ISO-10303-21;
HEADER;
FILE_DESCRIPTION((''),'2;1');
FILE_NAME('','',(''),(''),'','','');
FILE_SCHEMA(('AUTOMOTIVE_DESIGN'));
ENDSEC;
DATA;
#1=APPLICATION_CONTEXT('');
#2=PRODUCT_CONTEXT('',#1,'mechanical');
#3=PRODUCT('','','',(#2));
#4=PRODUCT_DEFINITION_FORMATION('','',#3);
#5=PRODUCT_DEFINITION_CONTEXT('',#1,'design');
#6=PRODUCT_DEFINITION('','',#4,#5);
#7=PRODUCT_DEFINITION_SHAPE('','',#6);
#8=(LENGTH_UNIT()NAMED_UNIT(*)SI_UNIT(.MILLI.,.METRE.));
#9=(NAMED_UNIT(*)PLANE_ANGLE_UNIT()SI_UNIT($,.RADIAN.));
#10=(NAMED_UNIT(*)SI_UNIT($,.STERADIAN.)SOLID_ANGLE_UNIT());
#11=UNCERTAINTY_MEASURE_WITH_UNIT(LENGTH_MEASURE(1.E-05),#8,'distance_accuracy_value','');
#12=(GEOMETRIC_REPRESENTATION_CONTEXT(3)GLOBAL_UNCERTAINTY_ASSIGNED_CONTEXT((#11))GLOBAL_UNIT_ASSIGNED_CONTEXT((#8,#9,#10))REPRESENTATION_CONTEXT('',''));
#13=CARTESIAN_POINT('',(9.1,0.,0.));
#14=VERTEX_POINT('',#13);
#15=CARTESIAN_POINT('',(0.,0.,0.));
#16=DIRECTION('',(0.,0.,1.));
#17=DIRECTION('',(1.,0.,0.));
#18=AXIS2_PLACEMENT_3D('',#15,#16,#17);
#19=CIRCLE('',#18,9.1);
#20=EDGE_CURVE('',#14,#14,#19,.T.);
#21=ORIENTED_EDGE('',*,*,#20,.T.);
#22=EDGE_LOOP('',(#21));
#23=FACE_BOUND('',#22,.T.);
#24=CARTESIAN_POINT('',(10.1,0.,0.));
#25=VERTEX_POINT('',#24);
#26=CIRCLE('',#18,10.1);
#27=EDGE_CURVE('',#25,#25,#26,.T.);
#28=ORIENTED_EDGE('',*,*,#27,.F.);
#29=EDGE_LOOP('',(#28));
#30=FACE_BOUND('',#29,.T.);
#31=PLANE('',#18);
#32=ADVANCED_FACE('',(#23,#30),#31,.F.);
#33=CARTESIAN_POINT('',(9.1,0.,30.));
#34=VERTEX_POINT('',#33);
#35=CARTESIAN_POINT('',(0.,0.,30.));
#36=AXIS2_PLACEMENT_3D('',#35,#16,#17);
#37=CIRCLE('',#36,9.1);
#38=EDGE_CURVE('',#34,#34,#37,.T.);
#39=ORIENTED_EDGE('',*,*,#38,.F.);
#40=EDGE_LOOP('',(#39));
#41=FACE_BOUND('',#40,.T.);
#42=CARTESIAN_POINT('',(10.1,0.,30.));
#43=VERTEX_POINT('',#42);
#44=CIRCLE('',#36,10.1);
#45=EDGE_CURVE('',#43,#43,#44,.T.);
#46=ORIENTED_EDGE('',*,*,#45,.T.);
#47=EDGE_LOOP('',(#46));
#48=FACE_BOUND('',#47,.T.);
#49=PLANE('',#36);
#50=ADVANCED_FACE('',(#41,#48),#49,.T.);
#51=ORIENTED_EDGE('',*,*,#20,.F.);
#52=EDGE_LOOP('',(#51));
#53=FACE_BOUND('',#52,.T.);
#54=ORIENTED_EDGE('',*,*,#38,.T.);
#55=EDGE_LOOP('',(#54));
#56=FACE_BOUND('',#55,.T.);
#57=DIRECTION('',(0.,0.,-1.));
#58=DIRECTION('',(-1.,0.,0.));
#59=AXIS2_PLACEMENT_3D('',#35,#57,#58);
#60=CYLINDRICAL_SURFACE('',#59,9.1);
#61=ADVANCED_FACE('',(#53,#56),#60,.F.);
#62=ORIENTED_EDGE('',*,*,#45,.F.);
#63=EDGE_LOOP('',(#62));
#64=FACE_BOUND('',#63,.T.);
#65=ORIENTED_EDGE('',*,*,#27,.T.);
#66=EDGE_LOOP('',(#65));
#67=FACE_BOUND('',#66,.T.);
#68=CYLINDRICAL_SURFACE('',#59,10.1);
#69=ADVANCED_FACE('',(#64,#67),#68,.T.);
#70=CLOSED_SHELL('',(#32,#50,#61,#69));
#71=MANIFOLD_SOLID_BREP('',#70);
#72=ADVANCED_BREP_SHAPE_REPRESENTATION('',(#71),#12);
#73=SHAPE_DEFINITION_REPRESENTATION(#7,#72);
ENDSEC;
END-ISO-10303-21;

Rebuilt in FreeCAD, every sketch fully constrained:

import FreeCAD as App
import Part
import Sketcher

doc = App.newDocument("Part")
params = doc.addObject("Spreadsheet::Sheet", "Params")
for row, (alias, value) in enumerate([
    ("sketch1_diameter", "20.2 mm"),
    ("sketch1_diameter2", "18.2 mm"),
    ("pad1_length", "30 mm"),
], start=1):
    params.set(f"A{row}", alias)
    params.set(f"B{row}", "=" + value)
    params.setAlias(f"B{row}", alias)

body = doc.addObject("PartDesign::Body", "Body")

sketch1 = body.newObject("Sketcher::SketchObject", "Sketch")
sketch1.AttachmentSupport = (doc.getObject("XY_Plane"), [""])
sketch1.MapMode = "FlatFace"
sketch1.addGeometry(Part.Circle(App.Vector(0, 0, 0), App.Vector(0, 0, 1), 10.1), False)
sketch1.addGeometry(Part.Circle(App.Vector(0, 0, 0), App.Vector(0, 0, 1), 9.1), False)
sketch1.addConstraint(Sketcher.Constraint("Coincident", 0, 3, -1, 1))
sketch1.addConstraint(Sketcher.Constraint("Coincident", 1, 3, -1, 1))
sketch1.addConstraint(Sketcher.Constraint("Diameter", 0, 20.2))
sketch1.addConstraint(Sketcher.Constraint("Diameter", 1, 18.2))
sketch1.setExpression("Constraints[2]", "Params.sketch1_diameter")
sketch1.setExpression("Constraints[3]", "Params.sketch1_diameter2")
pad1 = body.newObject("PartDesign::Pad", "Pad")
pad1.Profile = sketch1
pad1.setExpression("Length", "Params.pad1_length")

doc.recompute()
